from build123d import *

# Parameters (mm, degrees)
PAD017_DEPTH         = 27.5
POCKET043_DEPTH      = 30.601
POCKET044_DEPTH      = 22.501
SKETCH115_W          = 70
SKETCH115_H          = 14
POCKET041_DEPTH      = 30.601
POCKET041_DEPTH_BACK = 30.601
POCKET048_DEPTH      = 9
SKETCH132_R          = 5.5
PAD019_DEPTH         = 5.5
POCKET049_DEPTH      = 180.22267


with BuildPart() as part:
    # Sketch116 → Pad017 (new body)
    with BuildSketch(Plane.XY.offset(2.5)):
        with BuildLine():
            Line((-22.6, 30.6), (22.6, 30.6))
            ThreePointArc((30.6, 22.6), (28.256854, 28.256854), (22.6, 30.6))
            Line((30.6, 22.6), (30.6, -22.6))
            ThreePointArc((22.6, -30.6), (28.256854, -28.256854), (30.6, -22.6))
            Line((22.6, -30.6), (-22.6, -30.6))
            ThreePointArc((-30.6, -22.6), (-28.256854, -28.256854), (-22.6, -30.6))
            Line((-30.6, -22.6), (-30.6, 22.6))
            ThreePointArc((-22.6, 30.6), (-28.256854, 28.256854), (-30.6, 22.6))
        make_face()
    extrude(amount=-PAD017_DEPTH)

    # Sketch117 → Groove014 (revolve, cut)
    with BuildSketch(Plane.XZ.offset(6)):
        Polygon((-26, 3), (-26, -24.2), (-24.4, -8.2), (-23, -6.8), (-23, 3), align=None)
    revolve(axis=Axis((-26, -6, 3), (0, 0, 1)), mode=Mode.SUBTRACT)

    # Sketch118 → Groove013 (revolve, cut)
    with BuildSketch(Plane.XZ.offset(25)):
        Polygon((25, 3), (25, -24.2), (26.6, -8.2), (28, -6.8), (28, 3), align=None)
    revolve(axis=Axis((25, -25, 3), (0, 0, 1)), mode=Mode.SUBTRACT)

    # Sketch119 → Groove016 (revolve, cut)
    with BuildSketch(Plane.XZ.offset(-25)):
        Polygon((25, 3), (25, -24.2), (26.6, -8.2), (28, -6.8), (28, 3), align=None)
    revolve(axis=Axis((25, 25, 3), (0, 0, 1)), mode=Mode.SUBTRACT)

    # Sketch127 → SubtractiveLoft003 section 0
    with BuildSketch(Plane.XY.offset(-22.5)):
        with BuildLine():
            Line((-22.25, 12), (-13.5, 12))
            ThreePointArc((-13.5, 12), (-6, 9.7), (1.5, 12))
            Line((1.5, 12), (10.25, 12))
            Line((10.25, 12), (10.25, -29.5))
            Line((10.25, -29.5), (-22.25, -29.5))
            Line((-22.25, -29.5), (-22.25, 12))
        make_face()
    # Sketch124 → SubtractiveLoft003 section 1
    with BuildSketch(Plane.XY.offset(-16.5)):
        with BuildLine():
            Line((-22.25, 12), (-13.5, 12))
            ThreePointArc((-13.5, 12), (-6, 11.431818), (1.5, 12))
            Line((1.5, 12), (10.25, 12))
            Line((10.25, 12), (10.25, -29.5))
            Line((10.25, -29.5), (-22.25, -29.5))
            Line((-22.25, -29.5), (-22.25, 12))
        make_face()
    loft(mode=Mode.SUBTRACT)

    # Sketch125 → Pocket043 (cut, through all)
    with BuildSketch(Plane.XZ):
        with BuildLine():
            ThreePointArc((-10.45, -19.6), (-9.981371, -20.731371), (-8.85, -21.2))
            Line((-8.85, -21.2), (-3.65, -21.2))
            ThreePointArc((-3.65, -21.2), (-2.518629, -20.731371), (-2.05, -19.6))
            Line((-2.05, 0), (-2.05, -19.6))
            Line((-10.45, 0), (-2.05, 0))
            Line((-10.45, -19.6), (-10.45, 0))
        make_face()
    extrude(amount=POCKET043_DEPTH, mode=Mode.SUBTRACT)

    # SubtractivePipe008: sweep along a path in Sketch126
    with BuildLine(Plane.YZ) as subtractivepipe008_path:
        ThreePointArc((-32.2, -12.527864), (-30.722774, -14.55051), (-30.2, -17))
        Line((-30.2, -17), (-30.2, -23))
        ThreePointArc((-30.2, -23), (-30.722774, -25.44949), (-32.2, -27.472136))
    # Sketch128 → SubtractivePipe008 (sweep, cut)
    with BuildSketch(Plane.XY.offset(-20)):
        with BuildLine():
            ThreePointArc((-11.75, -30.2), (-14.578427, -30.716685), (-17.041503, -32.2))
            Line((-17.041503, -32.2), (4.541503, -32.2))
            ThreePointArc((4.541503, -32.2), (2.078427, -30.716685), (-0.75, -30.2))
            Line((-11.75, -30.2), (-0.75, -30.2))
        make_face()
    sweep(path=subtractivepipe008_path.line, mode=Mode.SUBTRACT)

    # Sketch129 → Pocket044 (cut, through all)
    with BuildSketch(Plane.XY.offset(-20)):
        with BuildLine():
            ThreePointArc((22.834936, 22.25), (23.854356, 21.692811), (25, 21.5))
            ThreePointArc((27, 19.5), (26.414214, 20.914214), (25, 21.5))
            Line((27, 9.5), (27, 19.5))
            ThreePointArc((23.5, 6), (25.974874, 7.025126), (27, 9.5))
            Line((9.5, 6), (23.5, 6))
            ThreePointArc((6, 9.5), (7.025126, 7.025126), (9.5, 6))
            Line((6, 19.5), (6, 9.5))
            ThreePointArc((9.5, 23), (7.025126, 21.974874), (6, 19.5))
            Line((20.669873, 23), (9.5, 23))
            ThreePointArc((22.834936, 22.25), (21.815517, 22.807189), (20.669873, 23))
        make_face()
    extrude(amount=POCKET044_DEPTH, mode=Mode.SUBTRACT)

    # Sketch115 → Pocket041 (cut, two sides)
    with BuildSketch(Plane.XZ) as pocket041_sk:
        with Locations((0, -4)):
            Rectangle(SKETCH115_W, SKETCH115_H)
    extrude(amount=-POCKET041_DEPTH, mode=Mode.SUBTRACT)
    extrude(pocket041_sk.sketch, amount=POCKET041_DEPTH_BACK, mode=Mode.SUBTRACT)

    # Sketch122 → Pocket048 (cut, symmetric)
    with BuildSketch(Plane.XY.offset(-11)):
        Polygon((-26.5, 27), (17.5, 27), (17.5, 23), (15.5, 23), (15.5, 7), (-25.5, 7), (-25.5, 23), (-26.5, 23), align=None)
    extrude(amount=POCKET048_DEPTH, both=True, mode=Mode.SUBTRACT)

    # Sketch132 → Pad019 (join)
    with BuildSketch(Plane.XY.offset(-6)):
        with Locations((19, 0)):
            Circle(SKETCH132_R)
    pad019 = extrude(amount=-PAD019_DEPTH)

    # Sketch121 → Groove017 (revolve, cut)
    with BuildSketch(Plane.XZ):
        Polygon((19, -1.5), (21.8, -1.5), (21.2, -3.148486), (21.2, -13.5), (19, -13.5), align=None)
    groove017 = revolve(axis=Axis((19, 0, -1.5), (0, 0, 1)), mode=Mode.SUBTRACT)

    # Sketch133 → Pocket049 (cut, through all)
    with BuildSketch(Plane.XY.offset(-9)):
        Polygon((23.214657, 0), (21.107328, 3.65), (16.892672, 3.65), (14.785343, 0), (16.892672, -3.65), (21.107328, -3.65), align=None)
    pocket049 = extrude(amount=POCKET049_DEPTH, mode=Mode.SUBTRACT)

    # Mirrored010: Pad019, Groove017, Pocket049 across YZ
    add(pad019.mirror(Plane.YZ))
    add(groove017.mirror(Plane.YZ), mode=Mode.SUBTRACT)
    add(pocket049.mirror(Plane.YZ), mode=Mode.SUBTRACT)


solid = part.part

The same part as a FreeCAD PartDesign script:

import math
import FreeCAD as App
import Part
import Sketcher
Q = App.Units.Quantity

doc = App.newDocument("Part")
body = doc.addObject("PartDesign::Body", "Body")

# Sketch on XY plane
sketch1 = doc.addObject("Sketcher::SketchObject", "Sketch")
body.addObject(sketch1)
sketch1.AttachmentSupport = (doc.XY_Plane, [""])
sketch1.MapMode = "FlatFace"
sketch1.AttachmentOffset = App.Placement(App.Vector(0, 0, 2.5), App.Rotation())
sketch1.addGeometry(Part.LineSegment(App.Vector(23, 31, 0), App.Vector(-23, 31, 0)), False)
sketch1.addGeometry(Part.ArcOfCircle(Part.Circle(App.Vector(-23, 23, 0), App.Vector(0, 0, 1), 8), math.radians(90), math.radians(180)), False)
sketch1.addGeometry(Part.LineSegment(App.Vector(-31, 23, 0), App.Vector(-31, -23, 0)), False)
sketch1.addGeometry(Part.ArcOfCircle(Part.Circle(App.Vector(-23, -23, 0), App.Vector(0, 0, 1), 8), math.radians(-180), math.radians(-90)), False)
sketch1.addGeometry(Part.LineSegment(App.Vector(-23, -31, 0), App.Vector(23, -31, 0)), False)
sketch1.addGeometry(Part.ArcOfCircle(Part.Circle(App.Vector(23, -23, 0), App.Vector(0, 0, 1), 8), math.radians(-90), math.radians(0)), False)
sketch1.addGeometry(Part.LineSegment(App.Vector(31, -23, 0), App.Vector(31, 23, 0)), False)
sketch1.addGeometry(Part.ArcOfCircle(Part.Circle(App.Vector(23, 23, 0), App.Vector(0, 0, 1), 8), math.radians(0), math.radians(90)), False)
sketch1.addConstraint(Sketcher.Constraint("Tangent", 0, 2, 1, 1))
sketch1.addConstraint(Sketcher.Constraint("Tangent", 1, 2, 2, 1))
sketch1.addConstraint(Sketcher.Constraint("Tangent", 2, 2, 3, 1))
sketch1.addConstraint(Sketcher.Constraint("Tangent", 3, 2, 4, 1))
sketch1.addConstraint(Sketcher.Constraint("Tangent", 4, 2, 5, 1))
sketch1.addConstraint(Sketcher.Constraint("Tangent", 5, 2, 6, 1))
sketch1.addConstraint(Sketcher.Constraint("Tangent", 6, 2, 7, 1))
sketch1.addConstraint(Sketcher.Constraint("Tangent", 7, 2, 0, 1))
sketch1.addConstraint(Sketcher.Constraint("Horizontal", 0))
sketch1.addConstraint(Sketcher.Constraint("Vertical", 2))
sketch1.addConstraint(Sketcher.Constraint("Horizontal", 4))
sketch1.addConstraint(Sketcher.Constraint("Vertical", 6))
sketch1.addConstraint(Sketcher.Constraint("Equal", 1, 3))
sketch1.addConstraint(Sketcher.Constraint("Equal", 3, 5))
sketch1.addConstraint(Sketcher.Constraint("Equal", 5, 7))
sketch1.addConstraint(Sketcher.Constraint("Symmetric", 1, 3, 5, 3, -1, 1))
sketch1.addConstraint(Sketcher.Constraint("Equal", 4, 2))
sketch1.addConstraint(Sketcher.Constraint("Radius", 1, 8.000001))
sketch1.addConstraint(Sketcher.Constraint("DistanceX", 0, 2, 0, 1, 45.2))
pad1 = doc.addObject("PartDesign::Pad", "Pad")
body.addObject(pad1)
pad1.Profile = sketch1
pad1.Length = 27.5
pad1.Reversed = True

# Sketch on XZ plane
sketch2 = doc.addObject("Sketcher::SketchObject", "Sketch001")
body.addObject(sketch2)
sketch2.AttachmentSupport = (doc.XZ_Plane, [""])
sketch2.MapMode = "FlatFace"
sketch2.AttachmentOffset = App.Placement(App.Vector(0, 0, 6), App.Rotation())
sketch2.addGeometry(Part.LineSegment(App.Vector(-26, 3, 0), App.Vector(-26, -24.2, 0)), False)
sketch2.addGeometry(Part.LineSegment(App.Vector(-26, -24.2, 0), App.Vector(-24.4, -8.2, 0)), False)
sketch2.addGeometry(Part.LineSegment(App.Vector(-24.4, -8.2, 0), App.Vector(-23, -6.8, 0)), False)
sketch2.addGeometry(Part.LineSegment(App.Vector(-23, -6.8, 0), App.Vector(-23, 3, 0)), False)
sketch2.addGeometry(Part.LineSegment(App.Vector(-23, 3, 0), App.Vector(-26, 3, 0)), False)
sketch2.addGeometry(Part.LineSegment(App.Vector(-26, -24.2, 0), App.Vector(-26, 3, 0)), True)  # axis
sketch2.addConstraint(Sketcher.Constraint("Coincident", 0, 2, 1, 1))
sketch2.addConstraint(Sketcher.Constraint("Coincident", 1, 2, 2, 1))
sketch2.addConstraint(Sketcher.Constraint("Coincident", 2, 2, 3, 1))
sketch2.addConstraint(Sketcher.Constraint("Coincident", 3, 2, 4, 1))
sketch2.addConstraint(Sketcher.Constraint("Coincident", 4, 2, 0, 1))
sketch2.addConstraint(Sketcher.Constraint("Vertical", 0))
sketch2.addConstraint(Sketcher.Constraint("Vertical", 3))
sketch2.addConstraint(Sketcher.Constraint("Horizontal", 4))
sketch2.addConstraint(Sketcher.Constraint("Vertical", 5))
sketch2.addConstraint(Sketcher.Constraint("Coincident", 5, 1, 0, 2))
sketch2.addConstraint(Sketcher.Constraint("Horizontal", 3, 2, 5, 2))
sketch2.addConstraint(Sketcher.Constraint("DistanceX", 4, 2, 4, 1, 3.0))
sketch2.addConstraint(Sketcher.Constraint("Angle", 2, Q("45 deg")))
sketch2.addConstraint(Sketcher.Constraint("DistanceY", 0, 2, 0, 1, 27.2))
sketch2.addConstraint(Sketcher.Constraint("DistanceY", 3, 1, 3, 2, 9.8))
sketch2.addConstraint(Sketcher.Constraint("DistanceX", 0, 2, -1, 1, 26.0))
sketch2.addConstraint(Sketcher.Constraint("DistanceY", -1, 1, 3, 2, 3.0))
sketch2.addConstraint(Sketcher.Constraint("DistanceY", 0, 2, 1, 2, 16.0))
groove = doc.addObject("PartDesign::Groove", "Groove")
body.addObject(groove)
groove.Profile = sketch2
groove.ReferenceAxis = (sketch2, ["Axis0"])
groove.Angle = 360

# Sketch on XZ plane
sketch3 = doc.addObject("Sketcher::SketchObject", "Sketch002")
body.addObject(sketch3)
sketch3.AttachmentSupport = (doc.XZ_Plane, [""])
sketch3.MapMode = "FlatFace"
sketch3.AttachmentOffset = App.Placement(App.Vector(0, 0, 25), App.Rotation())
sketch3.addGeometry(Part.LineSegment(App.Vector(25, 3, 0), App.Vector(25, -24.2, 0)), False)
sketch3.addGeometry(Part.LineSegment(App.Vector(25, -24.2, 0), App.Vector(26.6, -8.2, 0)), False)
sketch3.addGeometry(Part.LineSegment(App.Vector(26.6, -8.2, 0), App.Vector(28, -6.8, 0)), False)
sketch3.addGeometry(Part.LineSegment(App.Vector(28, -6.8, 0), App.Vector(28, 3, 0)), False)
sketch3.addGeometry(Part.LineSegment(App.Vector(28, 3, 0), App.Vector(25, 3, 0)), False)
sketch3.addGeometry(Part.LineSegment(App.Vector(25, -24.2, 0), App.Vector(25, 3, 0)), True)  # axis
sketch3.addConstraint(Sketcher.Constraint("Coincident", 0, 2, 1, 1))
sketch3.addConstraint(Sketcher.Constraint("Coincident", 1, 2, 2, 1))
sketch3.addConstraint(Sketcher.Constraint("Coincident", 2, 2, 3, 1))
sketch3.addConstraint(Sketcher.Constraint("Coincident", 3, 2, 4, 1))
sketch3.addConstraint(Sketcher.Constraint("Coincident", 4, 2, 0, 1))
sketch3.addConstraint(Sketcher.Constraint("Vertical", 0))
sketch3.addConstraint(Sketcher.Constraint("Vertical", 3))
sketch3.addConstraint(Sketcher.Constraint("Horizontal", 4))
sketch3.addConstraint(Sketcher.Constraint("Vertical", 5))
sketch3.addConstraint(Sketcher.Constraint("Coincident", 5, 1, 0, 2))
sketch3.addConstraint(Sketcher.Constraint("Horizontal", 3, 2, 5, 2))
sketch3.addConstraint(Sketcher.Constraint("DistanceX", 4, 2, 4, 1, 3.0))
sketch3.addConstraint(Sketcher.Constraint("Angle", 2, Q("45 deg")))
sketch3.addConstraint(Sketcher.Constraint("DistanceY", 0, 2, 0, 1, 27.2))
sketch3.addConstraint(Sketcher.Constraint("DistanceY", 3, 1, 3, 2, 9.8))
sketch3.addConstraint(Sketcher.Constraint("DistanceX", -1, 1, 0, 2, 25.0))
sketch3.addConstraint(Sketcher.Constraint("DistanceY", -1, 1, 3, 2, 3.0))
sketch3.addConstraint(Sketcher.Constraint("DistanceY", 0, 2, 1, 2, 16.0))
groove2 = doc.addObject("PartDesign::Groove", "Groove001")
body.addObject(groove2)
groove2.Profile = sketch3
groove2.ReferenceAxis = (sketch3, ["Axis0"])
groove2.Angle = 360

# Sketch on XZ plane
sketch4 = doc.addObject("Sketcher::SketchObject", "Sketch003")
body.addObject(sketch4)
sketch4.AttachmentSupport = (doc.XZ_Plane, [""])
sketch4.MapMode = "FlatFace"
sketch4.AttachmentOffset = App.Placement(App.Vector(0, 0, -25), App.Rotation())
sketch4.addGeometry(Part.LineSegment(App.Vector(25, 3, 0), App.Vector(25, -24.2, 0)), False)
sketch4.addGeometry(Part.LineSegment(App.Vector(25, -24.2, 0), App.Vector(26.6, -8.2, 0)), False)
sketch4.addGeometry(Part.LineSegment(App.Vector(26.6, -8.2, 0), App.Vector(28, -6.8, 0)), False)
sketch4.addGeometry(Part.LineSegment(App.Vector(28, -6.8, 0), App.Vector(28, 3, 0)), False)
sketch4.addGeometry(Part.LineSegment(App.Vector(28, 3, 0), App.Vector(25, 3, 0)), False)
sketch4.addGeometry(Part.LineSegment(App.Vector(25, -24.2, 0), App.Vector(25, 3, 0)), True)  # axis
sketch4.addConstraint(Sketcher.Constraint("Coincident", 0, 2, 1, 1))
sketch4.addConstraint(Sketcher.Constraint("Coincident", 1, 2, 2, 1))
sketch4.addConstraint(Sketcher.Constraint("Coincident", 2, 2, 3, 1))
sketch4.addConstraint(Sketcher.Constraint("Coincident", 3, 2, 4, 1))
sketch4.addConstraint(Sketcher.Constraint("Coincident", 4, 2, 0, 1))
sketch4.addConstraint(Sketcher.Constraint("Vertical", 0))
sketch4.addConstraint(Sketcher.Constraint("Vertical", 3))
sketch4.addConstraint(Sketcher.Constraint("Horizontal", 4))
sketch4.addConstraint(Sketcher.Constraint("Vertical", 5))
sketch4.addConstraint(Sketcher.Constraint("Coincident", 5, 1, 0, 2))
sketch4.addConstraint(Sketcher.Constraint("Horizontal", 3, 2, 5, 2))
sketch4.addConstraint(Sketcher.Constraint("DistanceX", 4, 2, 4, 1, 3.0))
sketch4.addConstraint(Sketcher.Constraint("Angle", 2, Q("45 deg")))
sketch4.addConstraint(Sketcher.Constraint("DistanceY", 0, 2, 0, 1, 27.2))
sketch4.addConstraint(Sketcher.Constraint("DistanceY", 3, 1, 3, 2, 9.8))
sketch4.addConstraint(Sketcher.Constraint("DistanceX", -1, 1, 0, 2, 25.0))
sketch4.addConstraint(Sketcher.Constraint("DistanceY", -1, 1, 3, 2, 3.0))
sketch4.addConstraint(Sketcher.Constraint("DistanceY", 0, 2, 1, 2, 16.0))
groove3 = doc.addObject("PartDesign::Groove", "Groove002")
body.addObject(groove3)
groove3.Profile = sketch4
groove3.ReferenceAxis = (sketch4, ["Axis0"])
groove3.Angle = 360

# Sketch on XY plane
sketch5 = doc.addObject("Sketcher::SketchObject", "Sketch004")
body.addObject(sketch5)
sketch5.AttachmentSupport = (doc.XY_Plane, [""])
sketch5.MapMode = "FlatFace"
sketch5.AttachmentOffset = App.Placement(App.Vector(0, 0, -22.5), App.Rotation())
sketch5.addGeometry(Part.LineSegment(App.Vector(-14, 12, 0), App.Vector(-22, 12, 0)), False)
sketch5.addGeometry(Part.LineSegment(App.Vector(-22, 12, 0), App.Vector(-22, -30, 0)), False)
sketch5.addGeometry(Part.LineSegment(App.Vector(-22, -30, 0), App.Vector(10, -30, 0)), False)
sketch5.addGeometry(Part.LineSegment(App.Vector(10, -30, 0), App.Vector(10, 12, 0)), False)
sketch5.addGeometry(Part.LineSegment(App.Vector(10, 12, 0), App.Vector(2, 12, 0)), False)
sketch5.addGeometry(Part.ArcOfCircle(Part.Circle(App.Vector(-6, 23, 0), App.Vector(0, 0, 1), 13), math.radians(-124), math.radians(-56)), False)
sketch5.addConstraint(Sketcher.Constraint("Coincident", 0, 2, 1, 1))
sketch5.addConstraint(Sketcher.Constraint("Coincident", 1, 2, 2, 1))
sketch5.addConstraint(Sketcher.Constraint("Coincident", 2, 2, 3, 1))
sketch5.addConstraint(Sketcher.Constraint("Coincident", 3, 2, 4, 1))
sketch5.addConstraint(Sketcher.Constraint("Coincident", 4, 2, 5, 2))
sketch5.addConstraint(Sketcher.Constraint("Coincident", 5, 1, 0, 1))
sketch5.addConstraint(Sketcher.Constraint("Horizontal", 0))
sketch5.addConstraint(Sketcher.Constraint("Vertical", 1))
sketch5.addConstraint(Sketcher.Constraint("Horizontal", 2))
sketch5.addConstraint(Sketcher.Constraint("Vertical", 3))
sketch5.addConstraint(Sketcher.Constraint("Horizontal", 4))
sketch5.addConstraint(Sketcher.Constraint("Horizontal", 0, 2, 3, 2))
sketch5.addConstraint(Sketcher.Constraint("Equal", 0, 4))
sketch5.addConstraint(Sketcher.Constraint("DistanceX", 2, 1, 2, 2, 32.5))
sketch5.addConstraint(Sketcher.Constraint("DistanceY", 1, 2, 1, 1, 41.5))
sketch5.addConstraint(Sketcher.Constraint("DistanceX", 5, 3, -1, 1, 6.0))
sketch5.addConstraint(Sketcher.Constraint("DistanceY", -1, 1, 0, 2, 12.0))
sketch5.addConstraint(Sketcher.Constraint("DistanceX", 5, 1, 4, 2, 15.0))
sketch5.addConstraint(Sketcher.Constraint("Radius", 5, 13.378261))

# Sketch on XY plane
sketch6 = doc.addObject("Sketcher::SketchObject", "Sketch005")
body.addObject(sketch6)
sketch6.AttachmentSupport = (doc.XY_Plane, [""])
sketch6.MapMode = "FlatFace"
sketch6.AttachmentOffset = App.Placement(App.Vector(0, 0, -16.5), App.Rotation())
sketch6.addGeometry(Part.LineSegment(App.Vector(-14, 12, 0), App.Vector(-22, 12, 0)), False)
sketch6.addGeometry(Part.LineSegment(App.Vector(-22, 12, 0), App.Vector(-22, -30, 0)), False)
sketch6.addGeometry(Part.LineSegment(App.Vector(-22, -30, 0), App.Vector(10, -30, 0)), False)
sketch6.addGeometry(Part.LineSegment(App.Vector(10, -30, 0), App.Vector(10, 12, 0)), False)
sketch6.addGeometry(Part.LineSegment(App.Vector(10, 12, 0), App.Vector(2, 12, 0)), False)
sketch6.addGeometry(Part.ArcOfCircle(Part.Circle(App.Vector(-6, 61, 0), App.Vector(0, 0, 1), 50), math.radians(-98.66), math.radians(-81.34)), False)
sketch6.addConstraint(Sketcher.Constraint("Coincident", 0, 2, 1, 1))
sketch6.addConstraint(Sketcher.Constraint("Coincident", 1, 2, 2, 1))
sketch6.addConstraint(Sketcher.Constraint("Coincident", 2, 2, 3, 1))
sketch6.addConstraint(Sketcher.Constraint("Coincident", 3, 2, 4, 1))
sketch6.addConstraint(Sketcher.Constraint("Coincident", 4, 2, 5, 2))
sketch6.addConstraint(Sketcher.Constraint("Coincident", 5, 1, 0, 1))
sketch6.addConstraint(Sketcher.Constraint("Horizontal", 0))
sketch6.addConstraint(Sketcher.Constraint("Vertical", 1))
sketch6.addConstraint(Sketcher.Constraint("Horizontal", 2))
sketch6.addConstraint(Sketcher.Constraint("Vertical", 3))
sketch6.addConstraint(Sketcher.Constraint("Horizontal", 4))
sketch6.addConstraint(Sketcher.Constraint("Horizontal", 0, 2, 3, 2))
sketch6.addConstraint(Sketcher.Constraint("Equal", 0, 4))
sketch6.addConstraint(Sketcher.Constraint("DistanceX", 2, 1, 2, 2, 32.5))
sketch6.addConstraint(Sketcher.Constraint("DistanceY", 1, 2, 1, 1, 41.5))
sketch6.addConstraint(Sketcher.Constraint("DistanceX", 5, 3, -1, 1, 6.0))
sketch6.addConstraint(Sketcher.Constraint("DistanceY", -1, 1, 0, 2, 12.0))
sketch6.addConstraint(Sketcher.Constraint("DistanceX", 5, 1, 4, 2, 15.0))
sketch6.addConstraint(Sketcher.Constraint("Radius", 5, 49.784075))

subtractiveloft = doc.addObject("PartDesign::SubtractiveLoft", "SubtractiveLoft")
body.addObject(subtractiveloft)
subtractiveloft.Profile = sketch5
subtractiveloft.Sections = [sketch6]

# Sketch on XZ plane
sketch7 = doc.addObject("Sketcher::SketchObject", "Sketch006")
body.addObject(sketch7)
sketch7.AttachmentSupport = (doc.XZ_Plane, [""])
sketch7.MapMode = "FlatFace"
sketch7.addGeometry(Part.ArcOfCircle(Part.Circle(App.Vector(-8.9, -19.6, 0), App.Vector(0, 0, 1), 1.6), math.radians(180), math.radians(270)), False)
sketch7.addGeometry(Part.LineSegment(App.Vector(-8.8, -21.2, 0), App.Vector(-3.6, -21.2, 0)), False)
sketch7.addGeometry(Part.ArcOfCircle(Part.Circle(App.Vector(-3.6, -19.6, 0), App.Vector(0, 0, 1), 1.6), math.radians(-90), math.radians(0)), False)
sketch7.addGeometry(Part.LineSegment(App.Vector(-2, -19.6, 0), App.Vector(-2, 0, 0)), False)
sketch7.addGeometry(Part.LineSegment(App.Vector(-2, 0, 0), App.Vector(-10.4, 0, 0)), False)
sketch7.addGeometry(Part.LineSegment(App.Vector(-10.4, 0, 0), App.Vector(-10.4, -19.6, 0)), False)
sketch7.addConstraint(Sketcher.Constraint("Tangent", 0, 2, 1, 1))
sketch7.addConstraint(Sketcher.Constraint("Tangent", 1, 2, 2, 1))
sketch7.addConstraint(Sketcher.Constraint("Tangent", 2, 2, 3, 1))
sketch7.addConstraint(Sketcher.Constraint("Coincident", 3, 2, 4, 1))
sketch7.addConstraint(Sketcher.Constraint("Coincident", 4, 2, 5, 1))
sketch7.addConstraint(Sketcher.Constraint("Tangent", 5, 2, 0, 1))
sketch7.addConstraint(Sketcher.Constraint("Horizontal", 1))
sketch7.addConstraint(Sketcher.Constraint("Vertical", 3))
sketch7.addConstraint(Sketcher.Constraint("Horizontal", 4))
sketch7.addConstraint(Sketcher.Constraint("Vertical", 5))
sketch7.addConstraint(Sketcher.Constraint("Equal", 0, 2))
sketch7.addConstraint(Sketcher.Constraint("PointOnObject", 3, 2, -1))
sketch7.addConstraint(Sketcher.Constraint("Radius", 0, 1.599999))
sketch7.addConstraint(Sketcher.Constraint("DistanceX", 1, 1, 1, 2, 5.2))
sketch7.addConstraint(Sketcher.Constraint("DistanceY", 3, 1, 3, 2, 19.6))
sketch7.addConstraint(Sketcher.Constraint("DistanceX", 0, 3, -1, 1, 8.850001))
pocket1 = doc.addObject("PartDesign::Pocket", "Pocket")
body.addObject(pocket1)
pocket1.Profile = sketch7
pocket1.Type = "ThroughAll"
pocket1.Reversed = True

# Sketch on XY plane
sketch8 = doc.addObject("Sketcher::SketchObject", "Sketch007")
body.addObject(sketch8)
sketch8.AttachmentSupport = (doc.XY_Plane, [""])
sketch8.MapMode = "FlatFace"
sketch8.AttachmentOffset = App.Placement(App.Vector(0, 0, -20), App.Rotation())
sketch8.addGeometry(Part.ArcOfCircle(Part.Circle(App.Vector(-12, -38, 0), App.Vector(0, 0, 1), 8), math.radians(90), math.radians(131)), False)
sketch8.addGeometry(Part.LineSegment(App.Vector(-17, -32, 0), App.Vector(5, -32, 0)), False)
sketch8.addGeometry(Part.ArcOfCircle(Part.Circle(App.Vector(-1, -38, 0), App.Vector(0, 0, 1), 8), math.radians(49), math.radians(90)), False)
sketch8.addGeometry(Part.LineSegment(App.Vector(-1, -30, 0), App.Vector(-12, -30, 0)), False)
sketch8.addConstraint(Sketcher.Constraint("Coincident", 0, 2, 1, 1))
sketch8.addConstraint(Sketcher.Constraint("Coincident", 1, 2, 2, 1))
sketch8.addConstraint(Sketcher.Constraint("Tangent", 2, 2, 3, 1))
sketch8.addConstraint(Sketcher.Constraint("Tangent", 3, 2, 0, 1))
sketch8.addConstraint(Sketcher.Constraint("Horizontal", 1))
sketch8.addConstraint(Sketcher.Constraint("Horizontal", 3))
sketch8.addConstraint(Sketcher.Constraint("Equal", 0, 2))
sketch8.addConstraint(Sketcher.Constraint("Radius", 0, 8.0))
sketch8.addConstraint(Sketcher.Constraint("DistanceX", 3, 2, 3, 1, 11.0))
sketch8.addConstraint(Sketcher.Constraint("DistanceY", 0, 3, 0, 2, 6.0))
sketch8.addConstraint(Sketcher.Constraint("DistanceY", 0, 3, -1, 1, 38.2))
sketch8.addConstraint(Sketcher.Constraint("DistanceX", 0, 3, -1, 1, 11.750001))

# Sketch on YZ plane
sketch9 = doc.addObject("Sketcher::SketchObject", "Sketch008")
body.addObject(sketch9)
sketch9.AttachmentSupport = (doc.YZ_Plane, [""])
sketch9.MapMode = "FlatFace"
sketch9.addGeometry(Part.ArcOfCircle(Part.Circle(App.Vector(-36.2, -17, 0), App.Vector(0, 0, 1), 6), math.radians(0), math.radians(48)), False)
sketch9.addGeometry(Part.LineSegment(App.Vector(-30.2, -17, 0), App.Vector(-30.2, -23, 0)), False)
sketch9.addGeometry(Part.ArcOfCircle(Part.Circle(App.Vector(-36.2, -23, 0), App.Vector(0, 0, 1), 6), math.radians(-48), math.radians(0)), False)
sketch9.addConstraint(Sketcher.Constraint("Tangent", 0, 1, 1, 1))
sketch9.addConstraint(Sketcher.Constraint("Tangent", 1, 2, 2, 2))
sketch9.addConstraint(Sketcher.Constraint("Vertical", 1))
sketch9.addConstraint(Sketcher.Constraint("Equal", 0, 2))
sketch9.addConstraint(Sketcher.Constraint("Vertical", 0, 2, 2, 1))
sketch9.addConstraint(Sketcher.Constraint("DistanceY", 1, 2, 1, 1, 6.0))
sketch9.addConstraint(Sketcher.Constraint("DistanceY", 0, 1, -1, 1, 17.0))
sketch9.addConstraint(Sketcher.Constraint("DistanceX", 0, 2, 0, 1, 2.0))
sketch9.addConstraint(Sketcher.Constraint("DistanceX", 0, 1, -1, 1, 30.2))
sketch9.addConstraint(Sketcher.Constraint("Radius", 0, 5.999995))
doc.recompute()

subtractivepipe = doc.addObject("PartDesign::SubtractivePipe", "SubtractivePipe")
body.addObject(subtractivepipe)
subtractivepipe.Profile = sketch8
subtractivepipe.Spine = (sketch9, ["Edge1", "Edge2", "Edge3"])

# Sketch on XY plane
sketch10 = doc.addObject("Sketcher::SketchObject", "Sketch009")
body.addObject(sketch10)
sketch10.AttachmentSupport = (doc.XY_Plane, [""])
sketch10.MapMode = "FlatFace"
sketch10.AttachmentOffset = App.Placement(App.Vector(0, 0, -20), App.Rotation())
sketch10.addGeometry(Part.ArcOfCircle(Part.Circle(App.Vector(25, 25, 0), App.Vector(0, 0, 1), 3.5), math.radians(-128), math.radians(-90)), False)
sketch10.addGeometry(Part.ArcOfCircle(Part.Circle(App.Vector(20.7, 19.5, 0), App.Vector(0, 0, 1), 3.5), math.radians(52), math.radians(90)), False)
sketch10.addGeometry(Part.LineSegment(App.Vector(20.7, 23, 0), App.Vector(9.5, 23, 0)), False)
sketch10.addGeometry(Part.ArcOfCircle(Part.Circle(App.Vector(9.5, 19.5, 0), App.Vector(0, 0, 1), 3.5), math.radians(90), math.radians(180)), False)
sketch10.addGeometry(Part.LineSegment(App.Vector(6, 19.5, 0), App.Vector(6, 9.5, 0)), False)
sketch10.addGeometry(Part.ArcOfCircle(Part.Circle(App.Vector(9.5, 9.5, 0), App.Vector(0, 0, 1), 3.5), math.radians(180), math.radians(270)), False)
sketch10.addGeometry(Part.LineSegment(App.Vector(9.5, 6, 0), App.Vector(23.5, 6, 0)), False)
sketch10.addGeometry(Part.ArcOfCircle(Part.Circle(App.Vector(23.5, 9.5, 0), App.Vector(0, 0, 1), 3.5), math.radians(-90), math.radians(0)), False)
sketch10.addGeometry(Part.LineSegment(App.Vector(27, 9.5, 0), App.Vector(27, 19.5, 0)), False)
sketch10.addGeometry(Part.ArcOfCircle(Part.Circle(App.Vector(25, 19.5, 0), App.Vector(0, 0, 1), 2), math.radians(0), math.radians(90)), False)
sketch10.addConstraint(Sketcher.Constraint("Tangent", 0, 1, 1, 1))
sketch10.addConstraint(Sketcher.Constraint("Tangent", 1, 2, 2, 1))
sketch10.addConstraint(Sketcher.Constraint("Tangent", 2, 2, 3, 1))
sketch10.addConstraint(Sketcher.Constraint("Tangent", 3, 2, 4, 1))
sketch10.addConstraint(Sketcher.Constraint("Tangent", 4, 2, 5, 1))
sketch10.addConstraint(Sketcher.Constraint("Tangent", 5, 2, 6, 1))
sketch10.addConstraint(Sketcher.Constraint("Tangent", 6, 2, 7, 1))
sketch10.addConstraint(Sketcher.Constraint("Tangent", 7, 2, 8, 1))
sketch10.addConstraint(Sketcher.Constraint("Tangent", 8, 2, 9, 1))
sketch10.addConstraint(Sketcher.Constraint("Tangent", 9, 2, 0, 2))
sketch10.addConstraint(Sketcher.Constraint("Horizontal", 2))
sketch10.addConstraint(Sketcher.Constraint("Vertical", 4))
sketch10.addConstraint(Sketcher.Constraint("Horizontal", 6))
sketch10.addConstraint(Sketcher.Constraint("Vertical", 8))
sketch10.addConstraint(Sketcher.Constraint("Equal", 1, 3))
sketch10.addConstraint(Sketcher.Constraint("Equal", 3, 5))
sketch10.addConstraint(Sketcher.Constraint("Equal", 5, 7))
sketch10.addConstraint(Sketcher.Constraint("Horizontal", 3, 3, 9, 3))
sketch10.addConstraint(Sketcher.Constraint("Vertical", 0, 3, 9, 3))
sketch10.addConstraint(Sketcher.Constraint("Radius", 9, 1.999999))
sketch10.addConstraint(Sketcher.Constraint("Radius", 1, 3.499999))
sketch10.addConstraint(Sketcher.Constraint("DistanceX", 6, 1, 6, 2, 14.0))
sketch10.addConstraint(Sketcher.Constraint("DistanceY", 4, 2, 4, 1, 10.0))
sketch10.addConstraint(Sketcher.Constraint("DistanceX", -1, 1, 0, 3, 25.000001))
sketch10.addConstraint(Sketcher.Constraint("DistanceY", -1, 1, 1, 2, 23.0))
sketch10.addConstraint(Sketcher.Constraint("DistanceY", -1, 1, 0, 1, 22.25))
pocket2 = doc.addObject("PartDesign::Pocket", "Pocket001")
body.addObject(pocket2)
pocket2.Profile = sketch10
pocket2.Type = "ThroughAll"
pocket2.Reversed = True

# Sketch on XZ plane
sketch11 = doc.addObject("Sketcher::SketchObject", "Sketch010")
body.addObject(sketch11)
sketch11.AttachmentSupport = (doc.XZ_Plane, [""])
sketch11.MapMode = "FlatFace"
sketch11.addGeometry(Part.LineSegment(App.Vector(-35, 3, 0), App.Vector(-35, -11, 0)), False)
sketch11.addGeometry(Part.LineSegment(App.Vector(-35, -11, 0), App.Vector(35, -11, 0)), False)
sketch11.addGeometry(Part.LineSegment(App.Vector(35, -11, 0), App.Vector(35, 3, 0)), False)
sketch11.addGeometry(Part.LineSegment(App.Vector(35, 3, 0), App.Vector(-35, 3, 0)), False)
sketch11.addConstraint(Sketcher.Constraint("Coincident", 0, 2, 1, 1))
sketch11.addConstraint(Sketcher.Constraint("Coincident", 1, 2, 2, 1))
sketch11.addConstraint(Sketcher.Constraint("Coincident", 2, 2, 3, 1))
sketch11.addConstraint(Sketcher.Constraint("Coincident", 3, 2, 0, 1))
sketch11.addConstraint(Sketcher.Constraint("Vertical", 0))
sketch11.addConstraint(Sketcher.Constraint("Horizontal", 1))
sketch11.addConstraint(Sketcher.Constraint("Vertical", 2))
sketch11.addConstraint(Sketcher.Constraint("Horizontal", 3))
sketch11.addConstraint(Sketcher.Constraint("DistanceX", 1, 1, 1, 2, 70.0))
sketch11.addConstraint(Sketcher.Constraint("DistanceY", 0, 2, 0, 1, 14.0))
sketch11.addConstraint(Sketcher.Constraint("DistanceX", 0, 2, -1, 1, 35.0))
sketch11.addConstraint(Sketcher.Constraint("DistanceY", 0, 2, -1, 1, 11.0))
pocket3 = doc.addObject("PartDesign::Pocket", "Pocket002")
body.addObject(pocket3)
pocket3.Profile = sketch11
pocket3.Type = "ThroughAll"
pocket3.Midplane = True

# Sketch on XY plane
sketch12 = doc.addObject("Sketcher::SketchObject", "Sketch011")
body.addObject(sketch12)
sketch12.AttachmentSupport = (doc.XY_Plane, [""])
sketch12.MapMode = "FlatFace"
sketch12.AttachmentOffset = App.Placement(App.Vector(0, 0, -11), App.Rotation())
sketch12.addGeometry(Part.LineSegment(App.Vector(17.5, 27, 0), App.Vector(-26.5, 27, 0)), False)
sketch12.addGeometry(Part.LineSegment(App.Vector(-26.5, 27, 0), App.Vector(-26.5, 23, 0)), False)
sketch12.addGeometry(Part.LineSegment(App.Vector(-26.5, 23, 0), App.Vector(-25.5, 23, 0)), False)
sketch12.addGeometry(Part.LineSegment(App.Vector(-25.5, 23, 0), App.Vector(-25.5, 7, 0)), False)
sketch12.addGeometry(Part.LineSegment(App.Vector(-25.5, 7, 0), App.Vector(15.5, 7, 0)), False)
sketch12.addGeometry(Part.LineSegment(App.Vector(15.5, 7, 0), App.Vector(15.5, 23, 0)), False)
sketch12.addGeometry(Part.LineSegment(App.Vector(15.5, 23, 0), App.Vector(17.5, 23, 0)), False)
sketch12.addGeometry(Part.LineSegment(App.Vector(17.5, 23, 0), App.Vector(17.5, 27, 0)), False)
sketch12.addConstraint(Sketcher.Constraint("Coincident", 0, 2, 1, 1))
sketch12.addConstraint(Sketcher.Constraint("Coincident", 1, 2, 2, 1))
sketch12.addConstraint(Sketcher.Constraint("Coincident", 2, 2, 3, 1))
sketch12.addConstraint(Sketcher.Constraint("Coincident", 3, 2, 4, 1))
sketch12.addConstraint(Sketcher.Constraint("Coincident", 4, 2, 5, 1))
sketch12.addConstraint(Sketcher.Constraint("Coincident", 5, 2, 6, 1))
sketch12.addConstraint(Sketcher.Constraint("Coincident", 6, 2, 7, 1))
sketch12.addConstraint(Sketcher.Constraint("Coincident", 7, 2, 0, 1))
sketch12.addConstraint(Sketcher.Constraint("Horizontal", 0))
sketch12.addConstraint(Sketcher.Constraint("Vertical", 1))
sketch12.addConstraint(Sketcher.Constraint("Horizontal", 2))
sketch12.addConstraint(Sketcher.Constraint("Vertical", 3))
sketch12.addConstraint(Sketcher.Constraint("Horizontal", 4))
sketch12.addConstraint(Sketcher.Constraint("Vertical", 5))
sketch12.addConstraint(Sketcher.Constraint("Horizontal", 6))
sketch12.addConstraint(Sketcher.Constraint("Vertical", 7))
sketch12.addConstraint(Sketcher.Constraint("Horizontal", 2, 2, 5, 2))
sketch12.addConstraint(Sketcher.Constraint("DistanceX", 0, 2, 0, 1, 44.0))
sketch12.addConstraint(Sketcher.Constraint("DistanceX", 2, 1, 2, 2, 1.0))
sketch12.addConstraint(Sketcher.Constraint("DistanceX", 4, 1, 4, 2, 41.0))
sketch12.addConstraint(Sketcher.Constraint("DistanceY", 1, 2, 1, 1, 4.0))
sketch12.addConstraint(Sketcher.Constraint("DistanceY", 3, 2, 3, 1, 16.0))
sketch12.addConstraint(Sketcher.Constraint("DistanceY", -1, 1, 0, 2, 27.0))
sketch12.addConstraint(Sketcher.Constraint("DistanceX", 0, 2, -1, 1, 26.5))
pocket4 = doc.addObject("PartDesign::Pocket", "Pocket003")
body.addObject(pocket4)
pocket4.Profile = sketch12
pocket4.Length = 18
pocket4.Midplane = True

# Sketch on XY plane
sketch13 = doc.addObject("Sketcher::SketchObject", "Sketch012")
body.addObject(sketch13)
sketch13.AttachmentSupport = (doc.XY_Plane, [""])
sketch13.MapMode = "FlatFace"
sketch13.AttachmentOffset = App.Placement(App.Vector(0, 0, -6), App.Rotation())
sketch13.addGeometry(Part.Circle(App.Vector(19, 0, 0), App.Vector(0, 0, 1), 6), False)
sketch13.addConstraint(Sketcher.Constraint("PointOnObject", 0, 3, -1))
sketch13.addConstraint(Sketcher.Constraint("Diameter", 0, 11.0))
sketch13.addConstraint(Sketcher.Constraint("DistanceX", -1, 1, 0, 3, 19.0))
pad2 = doc.addObject("PartDesign::Pad", "Pad001")
body.addObject(pad2)
pad2.Profile = sketch13
pad2.Length = 5.5
pad2.Reversed = True

# Sketch on XZ plane
sketch14 = doc.addObject("Sketcher::SketchObject", "Sketch013")
body.addObject(sketch14)
sketch14.AttachmentSupport = (doc.XZ_Plane, [""])
sketch14.MapMode = "FlatFace"
sketch14.addGeometry(Part.LineSegment(App.Vector(21.8, -1.5, 0), App.Vector(19, -1.5, 0)), False)
sketch14.addGeometry(Part.LineSegment(App.Vector(19, -1.5, 0), App.Vector(19, -13.5, 0)), False)
sketch14.addGeometry(Part.LineSegment(App.Vector(19, -13.5, 0), App.Vector(21.2, -13.5, 0)), False)
sketch14.addGeometry(Part.LineSegment(App.Vector(21.2, -13.5, 0), App.Vector(21.2, -3.1, 0)), False)
sketch14.addGeometry(Part.LineSegment(App.Vector(21.2, -3.1, 0), App.Vector(21.8, -1.5, 0)), False)
sketch14.addGeometry(Part.LineSegment(App.Vector(19, -13.5, 0), App.Vector(19, -1.5, 0)), True)  # axis
sketch14.addConstraint(Sketcher.Constraint("Coincident", 0, 2, 1, 1))
sketch14.addConstraint(Sketcher.Constraint("Coincident", 1, 2, 2, 1))
sketch14.addConstraint(Sketcher.Constraint("Coincident", 2, 2, 3, 1))
sketch14.addConstraint(Sketcher.Constraint("Coincident", 3, 2, 4, 1))
sketch14.addConstraint(Sketcher.Constraint("Coincident", 4, 2, 0, 1))
sketch14.addConstraint(Sketcher.Constraint("Horizontal", 0))
sketch14.addConstraint(Sketcher.Constraint("Vertical", 1))
sketch14.addConstraint(Sketcher.Constraint("Horizontal", 2))
sketch14.addConstraint(Sketcher.Constraint("Vertical", 3))
sketch14.addConstraint(Sketcher.Constraint("Vertical", 5))
sketch14.addConstraint(Sketcher.Constraint("Coincident", 5, 1, 1, 2))
sketch14.addConstraint(Sketcher.Constraint("Horizontal", 4, 2, 5, 2))
sketch14.addConstraint(Sketcher.Constraint("DistanceY", 1, 2, 1, 1, 12.0))
sketch14.addConstraint(Sketcher.Constraint("Angle", 4, Q("69.999995 deg")))
sketch14.addConstraint(Sketcher.Constraint("DistanceX", 0, 2, 0, 1, 2.8))
sketch14.addConstraint(Sketcher.Constraint("DistanceX", 2, 1, 2, 2, 2.2))
sketch14.addConstraint(Sketcher.Constraint("DistanceX", -1, 1, 0, 2, 19.0))
sketch14.addConstraint(Sketcher.Constraint("DistanceY", 0, 2, -1, 1, 1.5))
groove4 = doc.addObject("PartDesign::Groove", "Groove003")
body.addObject(groove4)
groove4.Profile = sketch14
groove4.ReferenceAxis = (sketch14, ["Axis0"])
groove4.Angle = 360

# Sketch on XY plane
sketch15 = doc.addObject("Sketcher::SketchObject", "Sketch014")
body.addObject(sketch15)
sketch15.AttachmentSupport = (doc.XY_Plane, [""])
sketch15.MapMode = "FlatFace"
sketch15.AttachmentOffset = App.Placement(App.Vector(0, 0, -9), App.Rotation())
sketch15.addGeometry(Part.LineSegment(App.Vector(23.2, 0, 0), App.Vector(21.1, 3.6, 0)), False)
sketch15.addGeometry(Part.LineSegment(App.Vector(21.1, 3.6, 0), App.Vector(16.9, 3.6, 0)), False)
sketch15.addGeometry(Part.LineSegment(App.Vector(16.9, 3.6, 0), App.Vector(14.8, 0, 0)), False)
sketch15.addGeometry(Part.LineSegment(App.Vector(14.8, 0, 0), App.Vector(16.9, -3.6, 0)), False)
sketch15.addGeometry(Part.LineSegment(App.Vector(16.9, -3.6, 0), App.Vector(21.1, -3.6, 0)), False)
sketch15.addGeometry(Part.LineSegment(App.Vector(21.1, -3.6, 0), App.Vector(23.2, 0, 0)), False)
sketch15.addConstraint(Sketcher.Constraint("Coincident", 0, 2, 1, 1))
sketch15.addConstraint(Sketcher.Constraint("Coincident", 1, 2, 2, 1))
sketch15.addConstraint(Sketcher.Constraint("Coincident", 2, 2, 3, 1))
sketch15.addConstraint(Sketcher.Constraint("Coincident", 3, 2, 4, 1))
sketch15.addConstraint(Sketcher.Constraint("Coincident", 4, 2, 5, 1))
sketch15.addConstraint(Sketcher.Constraint("Coincident", 5, 2, 0, 1))
sketch15.addConstraint(Sketcher.Constraint("Horizontal", 1))
sketch15.addConstraint(Sketcher.Constraint("Horizontal", 4))
sketch15.addConstraint(Sketcher.Constraint("Symmetric", 1, 2, 3, 2, -1))
sketch15.addConstraint(Sketcher.Constraint("PointOnObject", 2, 2, -1))
sketch15.addConstraint(Sketcher.Constraint("PointOnObject", 5, 2, -1))
sketch15.addConstraint(Sketcher.Constraint("Parallel", 0, 3))
sketch15.addConstraint(Sketcher.Constraint("Parallel", 2, 5))
sketch15.addConstraint(Sketcher.Constraint("Angle", 0, Q("120.000006 deg")))
sketch15.addConstraint(Sketcher.Constraint("DistanceY", 3, 2, 1, 2, 7.3))
sketch15.addConstraint(Sketcher.Constraint("DistanceX", 1, 2, 1, 1, 4.214656))
sketch15.addConstraint(Sketcher.Constraint("DistanceX", -1, 1, 0, 2, 21.107328))
pocket5 = doc.addObject("PartDesign::Pocket", "Pocket004")
body.addObject(pocket5)
pocket5.Profile = sketch15
pocket5.Type = "ThroughAll"
pocket5.Reversed = True
doc.recompute()

mirrored = doc.addObject("PartDesign::Mirrored", "Mirrored")
body.addObject(mirrored)
mirrored.Originals = [pad2, groove4, pocket5]
mirrored.MirrorPlane = (doc.YZ_Plane, [""])
body.Tip = mirrored

doc.recompute()
